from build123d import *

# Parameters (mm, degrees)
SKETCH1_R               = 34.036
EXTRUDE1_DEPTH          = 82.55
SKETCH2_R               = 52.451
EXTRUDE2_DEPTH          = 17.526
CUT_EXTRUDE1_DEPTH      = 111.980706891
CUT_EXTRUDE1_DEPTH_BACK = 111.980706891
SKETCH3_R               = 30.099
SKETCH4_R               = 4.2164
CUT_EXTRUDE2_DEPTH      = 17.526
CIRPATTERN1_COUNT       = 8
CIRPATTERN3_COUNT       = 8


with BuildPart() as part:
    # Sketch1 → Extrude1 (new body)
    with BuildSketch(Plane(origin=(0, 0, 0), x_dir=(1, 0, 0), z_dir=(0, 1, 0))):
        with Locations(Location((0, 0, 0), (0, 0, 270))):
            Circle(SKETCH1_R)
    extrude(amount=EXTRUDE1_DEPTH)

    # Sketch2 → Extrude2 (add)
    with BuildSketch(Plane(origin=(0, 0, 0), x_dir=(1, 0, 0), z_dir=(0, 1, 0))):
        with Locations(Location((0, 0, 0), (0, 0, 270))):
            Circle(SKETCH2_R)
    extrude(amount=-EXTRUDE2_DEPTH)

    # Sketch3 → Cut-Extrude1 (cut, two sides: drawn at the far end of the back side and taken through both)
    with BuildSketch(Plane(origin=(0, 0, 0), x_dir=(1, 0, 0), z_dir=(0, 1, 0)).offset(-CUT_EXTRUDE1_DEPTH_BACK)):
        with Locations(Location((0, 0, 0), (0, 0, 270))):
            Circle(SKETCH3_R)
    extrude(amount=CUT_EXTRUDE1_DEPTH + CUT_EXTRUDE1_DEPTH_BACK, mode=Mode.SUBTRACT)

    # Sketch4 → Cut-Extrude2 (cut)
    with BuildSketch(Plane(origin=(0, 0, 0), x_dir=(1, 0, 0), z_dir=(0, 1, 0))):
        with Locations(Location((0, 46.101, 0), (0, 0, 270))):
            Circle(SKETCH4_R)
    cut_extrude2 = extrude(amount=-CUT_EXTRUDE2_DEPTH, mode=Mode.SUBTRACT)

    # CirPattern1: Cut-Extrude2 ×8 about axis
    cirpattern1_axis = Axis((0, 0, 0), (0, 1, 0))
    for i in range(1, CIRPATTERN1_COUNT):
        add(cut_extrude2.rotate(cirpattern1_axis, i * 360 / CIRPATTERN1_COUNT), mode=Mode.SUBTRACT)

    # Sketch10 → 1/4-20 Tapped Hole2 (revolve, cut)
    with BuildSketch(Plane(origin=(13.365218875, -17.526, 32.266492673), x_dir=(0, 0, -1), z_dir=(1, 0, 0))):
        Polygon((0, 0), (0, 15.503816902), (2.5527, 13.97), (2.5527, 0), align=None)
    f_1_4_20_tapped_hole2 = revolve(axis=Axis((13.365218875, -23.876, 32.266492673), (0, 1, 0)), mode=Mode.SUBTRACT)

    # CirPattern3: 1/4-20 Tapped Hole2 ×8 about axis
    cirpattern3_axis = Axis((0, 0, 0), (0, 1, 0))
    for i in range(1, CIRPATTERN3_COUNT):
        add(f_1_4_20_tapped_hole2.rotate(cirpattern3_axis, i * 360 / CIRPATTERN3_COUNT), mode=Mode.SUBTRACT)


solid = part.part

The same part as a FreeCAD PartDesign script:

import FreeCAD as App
import Part
import Sketcher
Q = App.Units.Quantity

doc = App.newDocument("Part")
body = doc.addObject("PartDesign::Body", "Body")

sketch1 = body.newObject("Sketcher::SketchObject", "Sketch")
sketch1.AttachmentSupport = (doc.getObject("XZ_Plane"), [""])
sketch1.MapMode = "FlatFace"
sketch1.addGeometry(Part.Circle(App.Vector(0, 0, 0), App.Vector(0, 0, 1), 34.036), False)
sketch1.addConstraint([
    Sketcher.Constraint("Coincident", 0, 3, -1, 1),
    Sketcher.Constraint("Diameter", 0, Q("2.68 in")),
])
pad1 = body.newObject("PartDesign::Pad", "Pad")
pad1.Profile = sketch1
pad1.Length = Q("3.25 in")
pad1.Reversed = True

sketch2 = body.newObject("Sketcher::SketchObject", "Sketch001")
sketch2.AttachmentSupport = (doc.getObject("XZ_Plane"), [""])
sketch2.MapMode = "FlatFace"
sketch2.addGeometry(Part.Circle(App.Vector(0, 0, 0), App.Vector(0, 0, 1), 52.451), False)
sketch2.addConstraint([
    Sketcher.Constraint("Coincident", 0, 3, -1, 1),
    Sketcher.Constraint("Diameter", 0, Q("4.13 in")),
])
pad2 = body.newObject("PartDesign::Pad", "Pad001")
pad2.Profile = sketch2
pad2.Length = Q("0.69 in")

sketch3 = body.newObject("Sketcher::SketchObject", "Sketch002")
sketch3.AttachmentSupport = (doc.getObject("XZ_Plane"), [""])
sketch3.MapMode = "FlatFace"
sketch3.addGeometry(Part.Circle(App.Vector(0, 0, 0), App.Vector(0, 0, 1), 30.099), False)
sketch3.addConstraint([
    Sketcher.Constraint("Coincident", 0, 3, -1, 1),
    Sketcher.Constraint("Diameter", 0, Q("2.37 in")),
])
pocket1 = body.newObject("PartDesign::Pocket", "Pocket")
pocket1.Profile = sketch3
pocket1.Type = "ThroughAll"
pocket1.Midplane = True

sketch4 = body.newObject("Sketcher::SketchObject", "Sketch003")
sketch4.AttachmentSupport = (doc.getObject("XZ_Plane"), [""])
sketch4.MapMode = "FlatFace"
sketch4.addGeometry(Part.Circle(App.Vector(0, -46.101, 0), App.Vector(0, 0, 1), 4.2164), False)
sketch4.addConstraint([
    Sketcher.Constraint("PointOnObject", 0, 3, -2),
    Sketcher.Constraint("Diameter", 0, Q("0.332 in")),
    Sketcher.Constraint("DistanceY", 0, 3, -1, 1, Q("1.815 in")),
])
pocket2 = body.newObject("PartDesign::Pocket", "Pocket001")
pocket2.Profile = sketch4
pocket2.Length = Q("0.69 in")
pocket2.Reversed = True
doc.recompute()

polarpattern = body.newObject("PartDesign::PolarPattern", "PolarPattern")
polarpattern.Originals = [pocket2]
polarpattern.Axis = (doc.getObject("Y_Axis"), [""])
polarpattern.Angle = 360
polarpattern.Occurrences = 8
body.Tip = polarpattern

sketch5 = body.newObject("Sketcher::SketchObject", "Sketch004")
sketch5.AttachmentSupport = (doc.getObject("YZ_Plane"), [""])
sketch5.MapMode = "FlatFace"
sketch5.AttachmentOffset = App.Placement(App.Vector(0, 0, 13.365219), App.Rotation())
sketch5.addGeometry([
    Part.LineSegment(App.Vector(-2.022183, 32.266493, 0), App.Vector(-17.526, 32.266493, 0)),
    Part.LineSegment(App.Vector(-17.526, 32.266493, 0), App.Vector(-17.526, 29.713793, 0)),
    Part.LineSegment(App.Vector(-17.526, 29.713793, 0), App.Vector(-3.556, 29.713793, 0)),
    Part.LineSegment(App.Vector(-3.556, 29.713793, 0), App.Vector(-2.022183, 32.266493, 0)),
], False)
sketch5.addGeometry(Part.LineSegment(App.Vector(-17.526, 32.266493, 0), App.Vector(-2.022183, 32.266493, 0)), True)
sketch5.addConstraint([
    Sketcher.Constraint("Coincident", 0, 2, 1, 1),
    Sketcher.Constraint("Coincident", 1, 2, 2, 1),
    Sketcher.Constraint("Coincident", 2, 2, 3, 1),
    Sketcher.Constraint("Coincident", 3, 2, 0, 1),
    Sketcher.Constraint("Horizontal", 0),
    Sketcher.Constraint("Vertical", 1),
    Sketcher.Constraint("Horizontal", 2),
    Sketcher.Constraint("Horizontal", 4),
    Sketcher.Constraint("Coincident", 4, 1, 0, 2),
    Sketcher.Constraint("Equal", 0, 4),
    Sketcher.Constraint("Angle", 3, Q("59 deg")),
    Sketcher.Constraint("DistanceX", 2, 1, 2, 2, Q("0.55 in")),
    Sketcher.Constraint("DistanceX", 0, 2, -1, 1, Q("0.69 in")),
    Sketcher.Constraint("DistanceY", 1, 2, 1, 1, Q("0.1005 in")),
    Sketcher.Constraint("DistanceY", -1, 1, 0, 2, Q("32.266493 mm")),
])
groove = body.newObject("PartDesign::Groove", "Groove")
groove.Profile = sketch5
groove.ReferenceAxis = (sketch5, ["Axis0"])
groove.Angle = 360
doc.recompute()

polarpattern2 = body.newObject("PartDesign::PolarPattern", "PolarPattern001")
polarpattern2.Originals = [groove]
polarpattern2.Axis = (doc.getObject("Y_Axis"), [""])
polarpattern2.Angle = 360
polarpattern2.Occurrences = 8
body.Tip = polarpattern2

doc.recompute()
